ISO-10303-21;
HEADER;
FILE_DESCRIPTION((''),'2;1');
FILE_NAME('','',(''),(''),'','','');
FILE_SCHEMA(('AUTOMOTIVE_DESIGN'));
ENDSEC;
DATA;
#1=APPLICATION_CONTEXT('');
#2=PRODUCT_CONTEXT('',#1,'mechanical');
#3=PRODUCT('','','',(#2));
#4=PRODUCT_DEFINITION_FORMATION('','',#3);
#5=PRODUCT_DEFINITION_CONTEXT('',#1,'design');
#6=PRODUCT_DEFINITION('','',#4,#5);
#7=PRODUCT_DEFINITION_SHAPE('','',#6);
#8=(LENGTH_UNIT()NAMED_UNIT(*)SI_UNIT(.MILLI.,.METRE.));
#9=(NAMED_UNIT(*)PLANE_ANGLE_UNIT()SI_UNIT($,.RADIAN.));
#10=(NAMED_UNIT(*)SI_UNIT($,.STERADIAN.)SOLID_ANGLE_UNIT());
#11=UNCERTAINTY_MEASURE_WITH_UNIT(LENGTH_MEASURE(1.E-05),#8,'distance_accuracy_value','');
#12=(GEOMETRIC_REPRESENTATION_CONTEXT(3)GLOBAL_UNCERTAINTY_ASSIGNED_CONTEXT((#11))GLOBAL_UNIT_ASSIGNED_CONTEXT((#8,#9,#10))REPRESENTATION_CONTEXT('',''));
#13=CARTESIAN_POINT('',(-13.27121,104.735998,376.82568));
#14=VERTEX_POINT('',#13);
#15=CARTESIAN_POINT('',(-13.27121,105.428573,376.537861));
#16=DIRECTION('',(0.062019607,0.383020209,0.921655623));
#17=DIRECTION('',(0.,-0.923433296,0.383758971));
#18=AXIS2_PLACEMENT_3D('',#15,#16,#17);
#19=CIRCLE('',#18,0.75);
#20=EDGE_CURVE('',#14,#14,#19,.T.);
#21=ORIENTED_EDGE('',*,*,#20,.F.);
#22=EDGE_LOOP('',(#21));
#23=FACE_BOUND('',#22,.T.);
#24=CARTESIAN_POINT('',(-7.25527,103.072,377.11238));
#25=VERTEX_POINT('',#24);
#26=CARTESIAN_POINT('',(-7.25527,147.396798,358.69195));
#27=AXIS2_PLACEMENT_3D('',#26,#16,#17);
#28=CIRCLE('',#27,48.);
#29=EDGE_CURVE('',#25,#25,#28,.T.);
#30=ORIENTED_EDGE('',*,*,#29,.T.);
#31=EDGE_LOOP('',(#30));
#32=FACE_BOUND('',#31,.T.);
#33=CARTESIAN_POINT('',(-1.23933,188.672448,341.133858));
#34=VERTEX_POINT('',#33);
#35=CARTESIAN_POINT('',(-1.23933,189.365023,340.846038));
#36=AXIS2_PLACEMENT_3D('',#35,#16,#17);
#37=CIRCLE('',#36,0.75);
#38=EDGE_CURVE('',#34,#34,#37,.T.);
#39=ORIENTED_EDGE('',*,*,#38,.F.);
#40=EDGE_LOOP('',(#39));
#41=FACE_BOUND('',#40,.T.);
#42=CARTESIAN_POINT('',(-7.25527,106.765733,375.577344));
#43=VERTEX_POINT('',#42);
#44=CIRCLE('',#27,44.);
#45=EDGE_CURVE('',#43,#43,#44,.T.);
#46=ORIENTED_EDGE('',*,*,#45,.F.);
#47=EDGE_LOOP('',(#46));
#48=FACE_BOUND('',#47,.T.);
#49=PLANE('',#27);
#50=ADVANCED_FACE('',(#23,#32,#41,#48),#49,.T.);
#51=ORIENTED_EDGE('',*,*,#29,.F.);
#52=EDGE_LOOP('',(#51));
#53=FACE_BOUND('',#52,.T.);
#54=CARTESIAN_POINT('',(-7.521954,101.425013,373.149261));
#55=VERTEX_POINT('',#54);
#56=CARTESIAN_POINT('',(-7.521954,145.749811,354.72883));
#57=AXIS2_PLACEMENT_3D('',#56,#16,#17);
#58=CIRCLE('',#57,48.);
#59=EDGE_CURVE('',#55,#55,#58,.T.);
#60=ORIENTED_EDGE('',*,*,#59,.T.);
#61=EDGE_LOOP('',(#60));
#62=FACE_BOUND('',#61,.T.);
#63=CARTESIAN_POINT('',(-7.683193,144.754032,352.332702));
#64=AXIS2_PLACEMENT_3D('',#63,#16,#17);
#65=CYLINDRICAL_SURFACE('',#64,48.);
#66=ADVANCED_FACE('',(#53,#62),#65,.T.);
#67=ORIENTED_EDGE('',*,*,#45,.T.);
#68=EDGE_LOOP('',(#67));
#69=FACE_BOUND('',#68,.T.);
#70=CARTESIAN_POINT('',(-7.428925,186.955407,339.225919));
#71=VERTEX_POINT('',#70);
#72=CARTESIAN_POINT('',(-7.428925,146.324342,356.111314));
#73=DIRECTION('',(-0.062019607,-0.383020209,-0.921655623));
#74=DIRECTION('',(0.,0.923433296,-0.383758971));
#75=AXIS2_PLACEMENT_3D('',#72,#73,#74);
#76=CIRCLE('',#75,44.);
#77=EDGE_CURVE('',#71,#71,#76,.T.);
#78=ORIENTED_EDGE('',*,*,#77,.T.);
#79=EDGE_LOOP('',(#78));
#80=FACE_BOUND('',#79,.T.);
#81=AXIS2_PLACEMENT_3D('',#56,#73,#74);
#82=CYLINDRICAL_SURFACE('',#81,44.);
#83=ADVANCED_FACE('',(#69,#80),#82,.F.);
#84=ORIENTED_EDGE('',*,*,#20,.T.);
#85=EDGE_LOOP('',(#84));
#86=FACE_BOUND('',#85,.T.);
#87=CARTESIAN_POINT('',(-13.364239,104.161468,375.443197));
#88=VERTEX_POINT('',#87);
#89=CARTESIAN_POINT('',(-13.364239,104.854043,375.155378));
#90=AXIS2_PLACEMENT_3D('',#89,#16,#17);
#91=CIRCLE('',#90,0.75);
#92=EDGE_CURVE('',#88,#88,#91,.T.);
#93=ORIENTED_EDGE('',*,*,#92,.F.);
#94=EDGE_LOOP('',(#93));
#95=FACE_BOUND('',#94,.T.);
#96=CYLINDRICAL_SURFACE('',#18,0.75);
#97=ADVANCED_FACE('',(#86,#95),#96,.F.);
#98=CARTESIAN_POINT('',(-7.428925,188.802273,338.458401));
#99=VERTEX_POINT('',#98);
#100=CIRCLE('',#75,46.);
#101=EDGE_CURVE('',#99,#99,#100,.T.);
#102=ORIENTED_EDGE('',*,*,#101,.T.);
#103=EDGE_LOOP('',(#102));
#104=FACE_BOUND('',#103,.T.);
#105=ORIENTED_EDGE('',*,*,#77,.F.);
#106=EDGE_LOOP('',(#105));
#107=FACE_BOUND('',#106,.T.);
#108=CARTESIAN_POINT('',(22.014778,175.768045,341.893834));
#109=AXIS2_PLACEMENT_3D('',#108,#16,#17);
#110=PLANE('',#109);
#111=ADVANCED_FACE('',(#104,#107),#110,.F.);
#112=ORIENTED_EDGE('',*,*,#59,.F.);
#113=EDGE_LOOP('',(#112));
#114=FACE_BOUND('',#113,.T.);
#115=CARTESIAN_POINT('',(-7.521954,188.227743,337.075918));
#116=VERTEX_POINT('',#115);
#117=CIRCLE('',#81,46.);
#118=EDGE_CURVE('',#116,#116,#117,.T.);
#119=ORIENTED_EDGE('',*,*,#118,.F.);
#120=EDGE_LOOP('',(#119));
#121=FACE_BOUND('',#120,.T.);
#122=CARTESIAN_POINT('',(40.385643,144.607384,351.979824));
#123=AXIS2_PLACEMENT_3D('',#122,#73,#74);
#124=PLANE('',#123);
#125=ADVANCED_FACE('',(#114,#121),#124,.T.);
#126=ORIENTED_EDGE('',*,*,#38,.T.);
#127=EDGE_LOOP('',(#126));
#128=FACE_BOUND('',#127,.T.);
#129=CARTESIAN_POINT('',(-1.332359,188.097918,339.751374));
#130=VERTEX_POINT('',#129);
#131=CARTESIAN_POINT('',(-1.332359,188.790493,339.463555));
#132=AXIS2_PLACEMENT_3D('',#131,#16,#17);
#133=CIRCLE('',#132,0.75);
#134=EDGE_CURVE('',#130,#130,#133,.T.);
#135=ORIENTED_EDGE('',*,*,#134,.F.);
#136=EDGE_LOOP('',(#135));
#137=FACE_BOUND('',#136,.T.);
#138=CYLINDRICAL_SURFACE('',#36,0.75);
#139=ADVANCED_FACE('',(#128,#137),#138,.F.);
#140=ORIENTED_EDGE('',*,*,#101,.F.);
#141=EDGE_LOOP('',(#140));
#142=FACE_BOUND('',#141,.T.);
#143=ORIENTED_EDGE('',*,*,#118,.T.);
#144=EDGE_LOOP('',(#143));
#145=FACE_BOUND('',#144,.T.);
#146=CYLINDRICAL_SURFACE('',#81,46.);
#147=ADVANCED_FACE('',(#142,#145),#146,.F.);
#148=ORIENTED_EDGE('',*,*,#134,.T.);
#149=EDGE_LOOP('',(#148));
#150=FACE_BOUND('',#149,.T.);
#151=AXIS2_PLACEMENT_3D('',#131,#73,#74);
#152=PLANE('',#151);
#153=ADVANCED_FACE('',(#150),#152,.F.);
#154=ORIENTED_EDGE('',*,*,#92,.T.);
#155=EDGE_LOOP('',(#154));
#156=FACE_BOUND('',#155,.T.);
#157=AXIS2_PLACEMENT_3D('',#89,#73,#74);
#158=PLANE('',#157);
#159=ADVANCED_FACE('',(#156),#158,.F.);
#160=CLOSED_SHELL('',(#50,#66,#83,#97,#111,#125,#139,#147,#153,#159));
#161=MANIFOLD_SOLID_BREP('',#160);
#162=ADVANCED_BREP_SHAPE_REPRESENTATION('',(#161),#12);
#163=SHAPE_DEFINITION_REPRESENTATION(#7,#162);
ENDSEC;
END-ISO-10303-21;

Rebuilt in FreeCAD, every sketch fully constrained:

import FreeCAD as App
import Part
import Sketcher

V = App.Vector
Q = App.Units.Quantity

doc = App.newDocument("Part")
body = doc.addObject("PartDesign::Body", "Body")

# Sketch on an angled plane
sketch1 = body.newObject("Sketcher::SketchObject", "Sketch")
sketch1.Placement = App.Placement(V(0, -1.422219, 0.591043), App.Rotation(V(-1, 0, 0), V(0, 0.383758971, 0.923433296), V(0, 0.923433296, -0.383758971), "ZXY"))
sketch1.addGeometry([
    Part.LineSegment(V(-40.4, 380.5, 0), V(7.5, 383.5, 0)),
    Part.LineSegment(V(7.5, 383.5, 0), V(7.3, 387.8, 0)),
    Part.LineSegment(V(7.3, 387.8, 0), V(-40.7, 384.8, 0)),
    Part.LineSegment(V(-40.7, 384.8, 0), V(-40.4, 380.5, 0)),
], False)
sketch1.addGeometry(Part.LineSegment(V(7.5, 383.5, 0), V(7.3, 387.8, 0)), True)  # axis
sketch1.addConstraint([
    Sketcher.Constraint("Coincident", 0, 2, 1, 1),
    Sketcher.Constraint("Coincident", 1, 2, 2, 1),
    Sketcher.Constraint("Coincident", 2, 2, 3, 1),
    Sketcher.Constraint("Coincident", 3, 2, 0, 1),
    Sketcher.Constraint("Coincident", 4, 1, 0, 2),
    Sketcher.Constraint("Coincident", 4, 2, 1, 2),
    Sketcher.Constraint("Perpendicular", 0, 1),
    Sketcher.Constraint("Perpendicular", 1, 2),
    Sketcher.Constraint("Perpendicular", 2, 3),
    Sketcher.Constraint("Distance", 0, Q("48 mm")),
    Sketcher.Constraint("Distance", 1, Q("4.3 mm")),
    Sketcher.Constraint("DistanceY", -1, 1, 0, 2, Q("383.501211 mm")),
    Sketcher.Constraint("DistanceX", -1, 1, 1, 2, Q("7.25527 mm")),
    Sketcher.Constraint("DistanceY", -1, 1, 2, 2, Q("384.815992 mm")),
])
revolution = body.newObject("PartDesign::Revolution", "Revolution")
revolution.Profile = sketch1
revolution.ReferenceAxis = (sketch1, ["Axis0"])
revolution.Angle = 360

# Sketch on an angled plane
sketch2 = body.newObject("Sketcher::SketchObject", "Sketch001")
sketch2.Placement = App.Placement(V(23.976559, 148.074248, 356.308779), App.Rotation(V(0.998074931, -0.02380058, -0.05727097), V(-0.000000001, 0.923433295, -0.383758971), V(0.062019607, 0.383020209, 0.921655623), "ZXY"))
sketch2.addGeometry(Part.Circle(V(-25.3, 44.1, 0), V(0, 0, 1), 0.8), False)
sketch2.addConstraint([
    Sketcher.Constraint("Diameter", 0, Q("1.5 mm")),
    Sketcher.Constraint("DistanceX", 0, 3, -1, 1, Q("25.264524 mm")),
    Sketcher.Constraint("DistanceY", -1, 1, 0, 3, Q("44.063243 mm")),
])
doc.recompute()
hole = body.newObject("PartDesign::Hole", "Hole")
hole.Profile = sketch2
hole.ThreadType = "None"
hole.Diameter = 1.5
hole.DepthType = "Dimension"
hole.Depth = 1.5
hole.DrillPoint = "Flat"
doc.recompute()

datumline = body.newObject("PartDesign::Line", "DatumLine")
datumline.Placement = App.Placement(V(-31.231829, -0.677449, 2.38317), App.Rotation(V(0, 0, 1), V(0.062019607, 0.383020209, 0.921655623)))
polarpattern = body.newObject("PartDesign::PolarPattern", "PolarPattern")
polarpattern.Originals = [hole]
polarpattern.Axis = (datumline, [""])
polarpattern.Angle = 360
polarpattern.Occurrences = 2
body.Tip = polarpattern

# Sketch on an angled plane
sketch3 = body.newObject("Sketcher::SketchObject", "Sketch002")
sketch3.Placement = App.Placement(V(23.709875, 146.427261, 352.34566), App.Rotation(V(-0.998074931, 0.02380058, 0.05727097), V(-0.000000001, 0.923433295, -0.383758971), V(-0.062019607, -0.383020209, -0.921655623), "ZXY"))
sketch3.addGeometry(Part.Circle(V(31, -2, 0), V(0, 0, 1), 44), False)
sketch3.addConstraint([
    Sketcher.Constraint("Diameter", 0, Q("88 mm")),
    Sketcher.Constraint("DistanceX", -1, 1, 0, 3, Q("31.292068 mm")),
    Sketcher.Constraint("DistanceY", 0, 3, -1, 1, Q("1.540142 mm")),
])
doc.recompute()
hole2 = body.newObject("PartDesign::Hole", "Hole001")
hole2.Profile = sketch3
hole2.ThreadType = "None"
hole2.Diameter = 88
hole2.DepthType = "Dimension"
hole2.Depth = 41.41945
hole2.DrillPoint = "Flat"
hole2.HoleCutType = "Counterbore"
hole2.HoleCutDiameter = 92
hole2.HoleCutDepth = 1.5

doc.recompute()
